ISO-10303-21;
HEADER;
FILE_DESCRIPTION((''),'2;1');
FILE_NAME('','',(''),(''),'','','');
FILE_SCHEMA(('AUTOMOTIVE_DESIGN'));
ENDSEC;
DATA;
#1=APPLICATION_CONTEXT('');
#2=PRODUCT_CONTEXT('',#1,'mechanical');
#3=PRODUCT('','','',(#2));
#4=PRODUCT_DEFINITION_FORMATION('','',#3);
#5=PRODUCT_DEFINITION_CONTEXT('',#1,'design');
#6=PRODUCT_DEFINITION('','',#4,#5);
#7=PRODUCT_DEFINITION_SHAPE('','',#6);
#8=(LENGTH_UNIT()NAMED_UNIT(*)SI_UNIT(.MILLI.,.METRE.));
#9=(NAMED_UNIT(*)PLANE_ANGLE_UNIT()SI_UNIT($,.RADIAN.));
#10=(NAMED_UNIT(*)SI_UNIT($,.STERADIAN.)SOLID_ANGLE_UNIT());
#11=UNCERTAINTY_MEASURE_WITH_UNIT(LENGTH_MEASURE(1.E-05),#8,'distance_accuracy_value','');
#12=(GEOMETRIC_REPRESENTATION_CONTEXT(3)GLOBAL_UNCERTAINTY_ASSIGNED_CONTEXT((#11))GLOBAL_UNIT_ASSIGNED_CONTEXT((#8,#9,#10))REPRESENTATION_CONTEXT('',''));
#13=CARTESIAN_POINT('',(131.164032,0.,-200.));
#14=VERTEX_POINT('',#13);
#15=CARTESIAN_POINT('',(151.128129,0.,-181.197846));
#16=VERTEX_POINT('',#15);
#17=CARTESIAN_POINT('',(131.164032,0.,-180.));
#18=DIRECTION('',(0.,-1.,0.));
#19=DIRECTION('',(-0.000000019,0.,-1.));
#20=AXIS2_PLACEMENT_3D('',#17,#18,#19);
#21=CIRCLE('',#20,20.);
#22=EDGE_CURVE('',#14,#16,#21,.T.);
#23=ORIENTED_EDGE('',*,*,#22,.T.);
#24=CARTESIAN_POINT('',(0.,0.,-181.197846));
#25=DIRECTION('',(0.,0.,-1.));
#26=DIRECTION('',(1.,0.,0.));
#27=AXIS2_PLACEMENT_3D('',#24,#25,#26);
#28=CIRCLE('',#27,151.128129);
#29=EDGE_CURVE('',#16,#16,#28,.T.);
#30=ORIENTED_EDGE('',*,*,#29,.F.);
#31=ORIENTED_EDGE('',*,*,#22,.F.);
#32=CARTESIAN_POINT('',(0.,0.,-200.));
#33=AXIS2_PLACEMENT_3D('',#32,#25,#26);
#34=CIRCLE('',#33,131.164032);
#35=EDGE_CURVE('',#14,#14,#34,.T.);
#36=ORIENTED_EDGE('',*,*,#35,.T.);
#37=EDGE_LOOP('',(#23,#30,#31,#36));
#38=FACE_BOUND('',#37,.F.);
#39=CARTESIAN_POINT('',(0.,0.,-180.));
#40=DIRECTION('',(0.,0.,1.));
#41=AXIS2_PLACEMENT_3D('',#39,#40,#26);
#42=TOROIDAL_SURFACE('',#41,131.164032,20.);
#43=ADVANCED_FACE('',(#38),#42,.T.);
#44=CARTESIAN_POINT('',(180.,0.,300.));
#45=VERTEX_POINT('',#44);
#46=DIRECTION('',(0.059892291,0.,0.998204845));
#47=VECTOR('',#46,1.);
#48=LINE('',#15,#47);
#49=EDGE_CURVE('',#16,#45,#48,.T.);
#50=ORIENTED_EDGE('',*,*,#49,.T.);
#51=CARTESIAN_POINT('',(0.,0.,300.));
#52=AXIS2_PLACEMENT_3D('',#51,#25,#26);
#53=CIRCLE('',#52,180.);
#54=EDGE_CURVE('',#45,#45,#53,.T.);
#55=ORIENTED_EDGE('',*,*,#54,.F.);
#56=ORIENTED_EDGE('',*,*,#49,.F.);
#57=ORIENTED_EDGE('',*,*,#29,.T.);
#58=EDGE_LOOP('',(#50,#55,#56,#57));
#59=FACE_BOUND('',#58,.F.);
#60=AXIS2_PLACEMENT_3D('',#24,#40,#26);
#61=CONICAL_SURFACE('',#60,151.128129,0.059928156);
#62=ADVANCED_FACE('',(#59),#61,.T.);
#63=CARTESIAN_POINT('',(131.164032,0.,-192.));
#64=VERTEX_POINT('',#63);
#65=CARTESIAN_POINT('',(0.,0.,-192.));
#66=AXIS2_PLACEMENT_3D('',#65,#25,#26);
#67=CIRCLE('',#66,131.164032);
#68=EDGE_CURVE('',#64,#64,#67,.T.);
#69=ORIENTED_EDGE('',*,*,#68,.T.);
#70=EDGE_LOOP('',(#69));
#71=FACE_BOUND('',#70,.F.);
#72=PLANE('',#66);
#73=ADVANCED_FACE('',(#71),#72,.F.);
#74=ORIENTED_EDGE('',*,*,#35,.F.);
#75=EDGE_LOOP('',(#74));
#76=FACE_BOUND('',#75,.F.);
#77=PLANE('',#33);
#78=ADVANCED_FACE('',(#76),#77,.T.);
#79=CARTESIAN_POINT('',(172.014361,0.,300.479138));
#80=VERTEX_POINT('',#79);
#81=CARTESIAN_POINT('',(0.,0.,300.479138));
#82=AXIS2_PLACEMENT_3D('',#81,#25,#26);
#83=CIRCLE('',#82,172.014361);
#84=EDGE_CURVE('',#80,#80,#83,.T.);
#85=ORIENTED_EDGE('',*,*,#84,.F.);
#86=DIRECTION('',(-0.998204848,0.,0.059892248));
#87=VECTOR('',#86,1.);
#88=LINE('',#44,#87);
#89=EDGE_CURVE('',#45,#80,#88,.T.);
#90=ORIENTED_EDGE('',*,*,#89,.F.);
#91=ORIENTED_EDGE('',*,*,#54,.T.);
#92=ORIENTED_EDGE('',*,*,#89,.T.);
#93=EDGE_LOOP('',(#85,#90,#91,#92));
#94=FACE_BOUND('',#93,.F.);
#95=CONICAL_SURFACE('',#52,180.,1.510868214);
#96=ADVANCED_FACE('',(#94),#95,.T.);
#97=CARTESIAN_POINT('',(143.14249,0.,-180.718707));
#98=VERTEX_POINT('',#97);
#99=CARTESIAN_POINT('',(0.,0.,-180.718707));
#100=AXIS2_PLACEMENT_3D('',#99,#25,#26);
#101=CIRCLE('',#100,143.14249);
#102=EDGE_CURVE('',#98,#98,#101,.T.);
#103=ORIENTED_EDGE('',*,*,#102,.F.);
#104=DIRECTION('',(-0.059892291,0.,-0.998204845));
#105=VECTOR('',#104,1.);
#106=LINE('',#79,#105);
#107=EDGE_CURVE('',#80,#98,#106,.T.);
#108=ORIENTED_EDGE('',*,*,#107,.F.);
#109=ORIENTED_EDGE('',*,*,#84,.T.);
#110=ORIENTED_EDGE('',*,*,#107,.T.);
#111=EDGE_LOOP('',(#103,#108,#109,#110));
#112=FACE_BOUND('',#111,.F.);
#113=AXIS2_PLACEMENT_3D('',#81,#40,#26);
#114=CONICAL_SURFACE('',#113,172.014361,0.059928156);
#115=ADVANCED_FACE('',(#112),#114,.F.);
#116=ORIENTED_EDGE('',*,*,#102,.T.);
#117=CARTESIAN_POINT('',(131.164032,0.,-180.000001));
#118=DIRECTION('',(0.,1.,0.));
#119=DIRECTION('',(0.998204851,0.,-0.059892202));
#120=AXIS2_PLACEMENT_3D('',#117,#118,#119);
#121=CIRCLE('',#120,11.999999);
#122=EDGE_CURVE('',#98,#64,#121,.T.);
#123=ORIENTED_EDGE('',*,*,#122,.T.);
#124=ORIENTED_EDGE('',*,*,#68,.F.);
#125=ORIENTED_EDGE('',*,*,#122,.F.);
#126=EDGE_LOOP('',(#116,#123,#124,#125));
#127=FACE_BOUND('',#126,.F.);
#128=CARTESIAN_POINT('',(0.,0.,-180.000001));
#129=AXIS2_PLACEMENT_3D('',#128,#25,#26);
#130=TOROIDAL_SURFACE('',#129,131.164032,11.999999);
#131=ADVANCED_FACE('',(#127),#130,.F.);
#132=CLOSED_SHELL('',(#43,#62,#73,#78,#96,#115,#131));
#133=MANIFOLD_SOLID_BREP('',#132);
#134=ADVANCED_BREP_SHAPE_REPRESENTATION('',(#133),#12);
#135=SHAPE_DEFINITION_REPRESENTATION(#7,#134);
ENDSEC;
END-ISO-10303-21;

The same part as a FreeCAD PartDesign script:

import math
import FreeCAD as App
import Part
import Sketcher
Q = App.Units.Quantity

doc = App.newDocument("Part")
body = doc.addObject("PartDesign::Body", "Body")

# Sketch on XZ plane
sketch1 = body.newObject("Sketcher::SketchObject", "Sketch")
sketch1.AttachmentSupport = (doc.getObject("XZ_Plane"), [""])
sketch1.MapMode = "FlatFace"
sketch1.addGeometry([
    Part.ArcOfCircle(Part.Circle(App.Vector(131, -180, 0), App.Vector(0, 0, 1), 20), math.radians(-90), math.radians(-3)),  # 0
    Part.LineSegment(App.Vector(151, -181, 0), App.Vector(180, 300, 0)),  # 1
    Part.LineSegment(App.Vector(180, 300, 0), App.Vector(172, 300, 0)),  # 2
    Part.LineSegment(App.Vector(172, 300, 0), App.Vector(143, -181, 0)),  # 3
    Part.ArcOfCircle(Part.Circle(App.Vector(131, -180, 0), App.Vector(0, 0, 1), 12), math.radians(-90), math.radians(-3)),  # 4
    Part.LineSegment(App.Vector(131, -192, 0), App.Vector(0, -192, 0)),  # 5
    Part.LineSegment(App.Vector(0, -192, 0), App.Vector(0, -200, 0)),  # 6
    Part.LineSegment(App.Vector(0, -200, 0), App.Vector(131, -200, 0)),  # 7
], False)
sketch1.addConstraint([
    Sketcher.Constraint("Tangent", 0, 2, 1, 1),
    Sketcher.Constraint("Coincident", 1, 2, 2, 1),
    Sketcher.Constraint("Coincident", 2, 2, 3, 1),
    Sketcher.Constraint("Tangent", 3, 2, 4, 2),
    Sketcher.Constraint("Tangent", 4, 1, 5, 1),
    Sketcher.Constraint("Coincident", 5, 2, 6, 1),
    Sketcher.Constraint("Coincident", 6, 2, 7, 1),
    Sketcher.Constraint("Tangent", 7, 2, 0, 1),
    Sketcher.Constraint("Horizontal", 5),
    Sketcher.Constraint("Vertical", 6),
    Sketcher.Constraint("Horizontal", 7),
    Sketcher.Constraint("Coincident", 4, 3, 0, 3),
    Sketcher.Constraint("PointOnObject", 5, 2, -2),
    Sketcher.Constraint("Perpendicular", 1, 2),
    Sketcher.Constraint("Perpendicular", 2, 3),
    Sketcher.Constraint("Radius", 0, Q("20 mm")),
    Sketcher.Constraint("Radius", 4, Q("11.999999 mm")),
    Sketcher.Constraint("DistanceY", 0, 3, -1, 1, Q("180 mm")),
    Sketcher.Constraint("DistanceX", -1, 1, 1, 2, Q("180 mm")),
    Sketcher.Constraint("DistanceY", -1, 1, 1, 2, Q("300 mm")),
    Sketcher.Constraint("DistanceX", 5, 2, 5, 1, Q("131.164032 mm")),
])
revolution = body.newObject("PartDesign::Revolution", "Revolution")
revolution.Profile = sketch1
revolution.ReferenceAxis = (sketch1, ["V_Axis"])
revolution.Angle = 360

doc.recompute()
